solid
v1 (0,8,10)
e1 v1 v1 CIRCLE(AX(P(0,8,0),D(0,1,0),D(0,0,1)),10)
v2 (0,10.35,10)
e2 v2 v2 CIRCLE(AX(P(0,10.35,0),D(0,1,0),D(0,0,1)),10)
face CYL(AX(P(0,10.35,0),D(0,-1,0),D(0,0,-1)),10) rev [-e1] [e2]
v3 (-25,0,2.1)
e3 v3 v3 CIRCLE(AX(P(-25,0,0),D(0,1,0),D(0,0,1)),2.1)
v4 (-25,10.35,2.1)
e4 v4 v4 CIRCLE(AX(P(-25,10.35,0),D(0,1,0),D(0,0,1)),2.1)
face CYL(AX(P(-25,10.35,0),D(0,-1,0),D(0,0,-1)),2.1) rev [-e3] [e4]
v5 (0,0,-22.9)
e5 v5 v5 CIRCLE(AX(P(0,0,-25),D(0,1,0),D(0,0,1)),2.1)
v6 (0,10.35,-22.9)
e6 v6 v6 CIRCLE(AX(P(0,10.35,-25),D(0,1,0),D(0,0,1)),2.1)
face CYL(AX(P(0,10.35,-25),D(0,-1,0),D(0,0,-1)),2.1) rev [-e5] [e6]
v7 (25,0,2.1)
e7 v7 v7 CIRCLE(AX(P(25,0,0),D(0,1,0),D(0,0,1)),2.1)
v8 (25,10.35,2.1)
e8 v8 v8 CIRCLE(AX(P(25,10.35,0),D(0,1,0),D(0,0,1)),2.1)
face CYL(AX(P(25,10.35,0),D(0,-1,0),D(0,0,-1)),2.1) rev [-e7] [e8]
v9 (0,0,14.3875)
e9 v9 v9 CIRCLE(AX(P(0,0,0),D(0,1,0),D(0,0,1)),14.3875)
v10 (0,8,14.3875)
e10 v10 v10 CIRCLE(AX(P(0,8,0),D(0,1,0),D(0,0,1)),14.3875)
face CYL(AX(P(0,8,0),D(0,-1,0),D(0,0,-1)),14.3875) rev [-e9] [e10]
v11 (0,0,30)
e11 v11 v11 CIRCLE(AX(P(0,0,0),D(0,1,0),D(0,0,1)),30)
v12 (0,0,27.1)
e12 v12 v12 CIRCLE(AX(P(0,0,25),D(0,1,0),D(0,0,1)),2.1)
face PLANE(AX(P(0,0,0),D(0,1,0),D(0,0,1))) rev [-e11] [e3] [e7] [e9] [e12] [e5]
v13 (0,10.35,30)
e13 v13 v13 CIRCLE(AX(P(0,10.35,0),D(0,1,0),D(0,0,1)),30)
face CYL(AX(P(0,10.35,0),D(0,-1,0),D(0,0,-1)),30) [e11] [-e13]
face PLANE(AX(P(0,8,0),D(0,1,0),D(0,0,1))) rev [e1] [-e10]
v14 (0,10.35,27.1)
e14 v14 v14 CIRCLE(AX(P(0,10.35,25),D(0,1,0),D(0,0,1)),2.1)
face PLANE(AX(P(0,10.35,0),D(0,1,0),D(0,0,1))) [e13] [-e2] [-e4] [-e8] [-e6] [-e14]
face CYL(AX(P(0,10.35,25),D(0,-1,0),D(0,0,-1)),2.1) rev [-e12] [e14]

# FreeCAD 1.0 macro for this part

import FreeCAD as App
import Part
import Sketcher

V = App.Vector
Q = App.Units.Quantity

doc = App.newDocument("Part")
body = doc.addObject("PartDesign::Body", "Body")

sketch1 = body.newObject("Sketcher::SketchObject", "Sketch")
sketch1.AttachmentSupport = (doc.getObject("XZ_Plane"), [""])
sketch1.MapMode = "FlatFace"
sketch1.addGeometry([
    Part.Circle(V(0, 0, 0), V(0, 0, 1), 30),
    Part.Circle(V(0, -25, 0), V(0, 0, 1), 2.1),
    Part.Circle(V(-25, 0, 0), V(0, 0, 1), 2.1),
    Part.Circle(V(25, 0, 0), V(0, 0, 1), 2.1),
    Part.Circle(V(0, 0, 0), V(0, 0, 1), 10),
    Part.Circle(V(0, 25, 0), V(0, 0, 1), 2.1),
], False)
sketch1.addConstraint([
    Sketcher.Constraint("Coincident", 0, 3, -1, 1),
    Sketcher.Constraint("Coincident", 4, 3, -1, 1),
    Sketcher.Constraint("Equal", 1, 2),
    Sketcher.Constraint("Equal", 2, 3),
    Sketcher.Constraint("Equal", 3, 5),
    Sketcher.Constraint("Symmetric", 2, 3, 3, 3, -1, 1),
    Sketcher.Constraint("Symmetric", 1, 3, 5, 3, -1, 1),
    Sketcher.Constraint("PointOnObject", 1, 3, -2),
    Sketcher.Constraint("PointOnObject", 2, 3, -1),
    Sketcher.Constraint("Diameter", 0, Q("60 mm")),
    Sketcher.Constraint("Diameter", 4, Q("20 mm")),
    Sketcher.Constraint("Diameter", 1, Q("4.2 mm")),
    Sketcher.Constraint("DistanceY", 1, 3, -1, 1, Q("25 mm")),
    Sketcher.Constraint("DistanceX", 2, 3, -1, 1, Q("25 mm")),
])
pad1 = body.newObject("PartDesign::Pad", "Pad")
pad1.Profile = sketch1
pad1.Length = 10.35
pad1.Reversed = True

sketch2 = body.newObject("Sketcher::SketchObject", "Sketch001")
sketch2.AttachmentSupport = (doc.getObject("XZ_Plane"), [""])
sketch2.MapMode = "FlatFace"
sketch2.addGeometry(Part.Circle(V(0, 0, 0), V(0, 0, 1), 14), False)
sketch2.addConstraint([
    Sketcher.Constraint("Coincident", 0, 3, -1, 1),
    Sketcher.Constraint("Diameter", 0, Q("28.775 mm")),
])
pocket1 = body.newObject("PartDesign::Pocket", "Pocket")
pocket1.Profile = sketch2
pocket1.Length = 8

doc.recompute()
